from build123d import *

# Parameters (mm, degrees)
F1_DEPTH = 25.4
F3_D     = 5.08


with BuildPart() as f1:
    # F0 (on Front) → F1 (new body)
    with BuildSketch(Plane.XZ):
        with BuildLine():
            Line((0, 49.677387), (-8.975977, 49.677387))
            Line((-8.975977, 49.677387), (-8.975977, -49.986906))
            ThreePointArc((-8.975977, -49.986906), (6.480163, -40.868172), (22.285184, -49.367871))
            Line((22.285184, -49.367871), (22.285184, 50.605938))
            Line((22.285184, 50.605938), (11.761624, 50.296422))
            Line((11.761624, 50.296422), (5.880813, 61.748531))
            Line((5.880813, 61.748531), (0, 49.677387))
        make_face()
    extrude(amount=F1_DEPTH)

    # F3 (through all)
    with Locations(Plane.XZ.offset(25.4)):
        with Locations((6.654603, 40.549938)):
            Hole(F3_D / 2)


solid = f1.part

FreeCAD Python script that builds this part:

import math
import FreeCAD as App
import Part
import Sketcher
Q = App.Units.Quantity

doc = App.newDocument("Part")
params = doc.addObject("Spreadsheet::Sheet", "Params")
for row, (alias, value) in enumerate([
    ("pad1_length", "1 in"),
    ("sketch2_diameter", "0.2 in"),
    ("hole_diameter", "0.2 in"),
], start=1):
    params.set(f"A{row}", alias)
    params.set(f"B{row}", "=" + value)
    params.setAlias(f"B{row}", alias)

body = doc.addObject("PartDesign::Body", "Body")

sketch1 = body.newObject("Sketcher::SketchObject", "Sketch")
sketch1.AttachmentSupport = (doc.getObject("XZ_Plane"), [""])
sketch1.MapMode = "FlatFace"
sketch1.addGeometry(Part.LineSegment(App.Vector(0, 49.677387, 0), App.Vector(-8.975977, 49.677387, 0)), False)
sketch1.addGeometry(Part.LineSegment(App.Vector(-8.975977, 49.677387, 0), App.Vector(-8.975977, -49.986906, 0)), False)
sketch1.addGeometry(Part.ArcOfCircle(Part.Circle(App.Vector(6.841978, -59.139794, 0), App.Vector(0, 0, 1), 18.275204), math.radians(32.324204), math.radians(149.944647)), False)
sketch1.addGeometry(Part.LineSegment(App.Vector(22.285184, -49.367871, 0), App.Vector(22.285184, 50.605938, 0)), False)
sketch1.addGeometry(Part.LineSegment(App.Vector(22.285184, 50.605938, 0), App.Vector(11.761624, 50.296422, 0)), False)
sketch1.addGeometry(Part.LineSegment(App.Vector(11.761624, 50.296422, 0), App.Vector(5.880813, 61.748531, 0)), False)
sketch1.addGeometry(Part.LineSegment(App.Vector(5.880813, 61.748531, 0), App.Vector(0, 49.677387, 0)), False)
sketch1.addConstraint(Sketcher.Constraint("Coincident", 0, 2, 1, 1))
sketch1.addConstraint(Sketcher.Constraint("Coincident", 1, 2, 2, 2))
sketch1.addConstraint(Sketcher.Constraint("Coincident", 2, 1, 3, 1))
sketch1.addConstraint(Sketcher.Constraint("Coincident", 3, 2, 4, 1))
sketch1.addConstraint(Sketcher.Constraint("Coincident", 4, 2, 5, 1))
sketch1.addConstraint(Sketcher.Constraint("Coincident", 5, 2, 6, 1))
sketch1.addConstraint(Sketcher.Constraint("Coincident", 6, 2, 0, 1))
sketch1.addConstraint(Sketcher.Constraint("Horizontal", 0))
sketch1.addConstraint(Sketcher.Constraint("Vertical", 1))
sketch1.addConstraint(Sketcher.Constraint("Vertical", 3))
sketch1.addConstraint(Sketcher.Constraint("PointOnObject", 6, 2, -2))
sketch1.addConstraint(Sketcher.Constraint("Radius", 2, Q("18.275204 mm")))
sketch1.addConstraint(Sketcher.Constraint("Distance", 5, Q("12.8738 mm")))
sketch1.addConstraint(Sketcher.Constraint("DistanceY", 3, 1, 3, 2, Q("99.973809 mm")))
sketch1.addConstraint(Sketcher.Constraint("DistanceX", 0, 2, 4, 2, Q("20.737601 mm")))
sketch1.addConstraint(Sketcher.Constraint("DistanceY", 2, 1, 5, 2, Q("111.116402 mm")))
sketch1.addConstraint(Sketcher.Constraint("Distance", 4, Q("10.528111 mm")))
sketch1.addConstraint(Sketcher.Constraint("DistanceX", 0, 2, 0, 1, Q("8.975977 mm")))
sketch1.addConstraint(Sketcher.Constraint("DistanceY", 1, 2, 1, 1, Q("99.664293 mm")))
sketch1.addConstraint(Sketcher.Constraint("DistanceX", -1, 1, 2, 3, Q("6.841978 mm")))
sketch1.addConstraint(Sketcher.Constraint("DistanceY", 2, 1, -1, 1, Q("49.367871 mm")))
sketch1.addConstraint(Sketcher.Constraint("DistanceX", 0, 2, 3, 2, Q("31.261161 mm")))
pad1 = body.newObject("PartDesign::Pad", "Pad")
pad1.Profile = sketch1
pad1.setExpression("Length", "Params.pad1_length")

sketch2 = body.newObject("Sketcher::SketchObject", "Sketch001")
sketch2.AttachmentSupport = (doc.getObject("XZ_Plane"), [""])
sketch2.MapMode = "FlatFace"
sketch2.AttachmentOffset = App.Placement(App.Vector(0, 0, 1 * 25.4), App.Rotation())
sketch2.addGeometry(Part.Circle(App.Vector(6.654603, 40.549938, 0), App.Vector(0, 0, 1), 2.54), False)
sketch2.addConstraint(Sketcher.Constraint("Diameter", 0, Q("0.2 in")))
sketch2.addConstraint(Sketcher.Constraint("DistanceX", -1, 1, 0, 3, Q("6.654603 mm")))
sketch2.addConstraint(Sketcher.Constraint("DistanceY", -1, 1, 0, 3, Q("40.549938 mm")))
sketch2.setExpression("Constraints[0]", "Params.sketch2_diameter")
doc.recompute()
hole = body.newObject("PartDesign::Hole", "Hole")
hole.Profile = sketch2
hole.ThreadType = "None"
hole.setExpression("Diameter", "Params.hole_diameter")
hole.DepthType = "ThroughAll"

doc.recompute()
